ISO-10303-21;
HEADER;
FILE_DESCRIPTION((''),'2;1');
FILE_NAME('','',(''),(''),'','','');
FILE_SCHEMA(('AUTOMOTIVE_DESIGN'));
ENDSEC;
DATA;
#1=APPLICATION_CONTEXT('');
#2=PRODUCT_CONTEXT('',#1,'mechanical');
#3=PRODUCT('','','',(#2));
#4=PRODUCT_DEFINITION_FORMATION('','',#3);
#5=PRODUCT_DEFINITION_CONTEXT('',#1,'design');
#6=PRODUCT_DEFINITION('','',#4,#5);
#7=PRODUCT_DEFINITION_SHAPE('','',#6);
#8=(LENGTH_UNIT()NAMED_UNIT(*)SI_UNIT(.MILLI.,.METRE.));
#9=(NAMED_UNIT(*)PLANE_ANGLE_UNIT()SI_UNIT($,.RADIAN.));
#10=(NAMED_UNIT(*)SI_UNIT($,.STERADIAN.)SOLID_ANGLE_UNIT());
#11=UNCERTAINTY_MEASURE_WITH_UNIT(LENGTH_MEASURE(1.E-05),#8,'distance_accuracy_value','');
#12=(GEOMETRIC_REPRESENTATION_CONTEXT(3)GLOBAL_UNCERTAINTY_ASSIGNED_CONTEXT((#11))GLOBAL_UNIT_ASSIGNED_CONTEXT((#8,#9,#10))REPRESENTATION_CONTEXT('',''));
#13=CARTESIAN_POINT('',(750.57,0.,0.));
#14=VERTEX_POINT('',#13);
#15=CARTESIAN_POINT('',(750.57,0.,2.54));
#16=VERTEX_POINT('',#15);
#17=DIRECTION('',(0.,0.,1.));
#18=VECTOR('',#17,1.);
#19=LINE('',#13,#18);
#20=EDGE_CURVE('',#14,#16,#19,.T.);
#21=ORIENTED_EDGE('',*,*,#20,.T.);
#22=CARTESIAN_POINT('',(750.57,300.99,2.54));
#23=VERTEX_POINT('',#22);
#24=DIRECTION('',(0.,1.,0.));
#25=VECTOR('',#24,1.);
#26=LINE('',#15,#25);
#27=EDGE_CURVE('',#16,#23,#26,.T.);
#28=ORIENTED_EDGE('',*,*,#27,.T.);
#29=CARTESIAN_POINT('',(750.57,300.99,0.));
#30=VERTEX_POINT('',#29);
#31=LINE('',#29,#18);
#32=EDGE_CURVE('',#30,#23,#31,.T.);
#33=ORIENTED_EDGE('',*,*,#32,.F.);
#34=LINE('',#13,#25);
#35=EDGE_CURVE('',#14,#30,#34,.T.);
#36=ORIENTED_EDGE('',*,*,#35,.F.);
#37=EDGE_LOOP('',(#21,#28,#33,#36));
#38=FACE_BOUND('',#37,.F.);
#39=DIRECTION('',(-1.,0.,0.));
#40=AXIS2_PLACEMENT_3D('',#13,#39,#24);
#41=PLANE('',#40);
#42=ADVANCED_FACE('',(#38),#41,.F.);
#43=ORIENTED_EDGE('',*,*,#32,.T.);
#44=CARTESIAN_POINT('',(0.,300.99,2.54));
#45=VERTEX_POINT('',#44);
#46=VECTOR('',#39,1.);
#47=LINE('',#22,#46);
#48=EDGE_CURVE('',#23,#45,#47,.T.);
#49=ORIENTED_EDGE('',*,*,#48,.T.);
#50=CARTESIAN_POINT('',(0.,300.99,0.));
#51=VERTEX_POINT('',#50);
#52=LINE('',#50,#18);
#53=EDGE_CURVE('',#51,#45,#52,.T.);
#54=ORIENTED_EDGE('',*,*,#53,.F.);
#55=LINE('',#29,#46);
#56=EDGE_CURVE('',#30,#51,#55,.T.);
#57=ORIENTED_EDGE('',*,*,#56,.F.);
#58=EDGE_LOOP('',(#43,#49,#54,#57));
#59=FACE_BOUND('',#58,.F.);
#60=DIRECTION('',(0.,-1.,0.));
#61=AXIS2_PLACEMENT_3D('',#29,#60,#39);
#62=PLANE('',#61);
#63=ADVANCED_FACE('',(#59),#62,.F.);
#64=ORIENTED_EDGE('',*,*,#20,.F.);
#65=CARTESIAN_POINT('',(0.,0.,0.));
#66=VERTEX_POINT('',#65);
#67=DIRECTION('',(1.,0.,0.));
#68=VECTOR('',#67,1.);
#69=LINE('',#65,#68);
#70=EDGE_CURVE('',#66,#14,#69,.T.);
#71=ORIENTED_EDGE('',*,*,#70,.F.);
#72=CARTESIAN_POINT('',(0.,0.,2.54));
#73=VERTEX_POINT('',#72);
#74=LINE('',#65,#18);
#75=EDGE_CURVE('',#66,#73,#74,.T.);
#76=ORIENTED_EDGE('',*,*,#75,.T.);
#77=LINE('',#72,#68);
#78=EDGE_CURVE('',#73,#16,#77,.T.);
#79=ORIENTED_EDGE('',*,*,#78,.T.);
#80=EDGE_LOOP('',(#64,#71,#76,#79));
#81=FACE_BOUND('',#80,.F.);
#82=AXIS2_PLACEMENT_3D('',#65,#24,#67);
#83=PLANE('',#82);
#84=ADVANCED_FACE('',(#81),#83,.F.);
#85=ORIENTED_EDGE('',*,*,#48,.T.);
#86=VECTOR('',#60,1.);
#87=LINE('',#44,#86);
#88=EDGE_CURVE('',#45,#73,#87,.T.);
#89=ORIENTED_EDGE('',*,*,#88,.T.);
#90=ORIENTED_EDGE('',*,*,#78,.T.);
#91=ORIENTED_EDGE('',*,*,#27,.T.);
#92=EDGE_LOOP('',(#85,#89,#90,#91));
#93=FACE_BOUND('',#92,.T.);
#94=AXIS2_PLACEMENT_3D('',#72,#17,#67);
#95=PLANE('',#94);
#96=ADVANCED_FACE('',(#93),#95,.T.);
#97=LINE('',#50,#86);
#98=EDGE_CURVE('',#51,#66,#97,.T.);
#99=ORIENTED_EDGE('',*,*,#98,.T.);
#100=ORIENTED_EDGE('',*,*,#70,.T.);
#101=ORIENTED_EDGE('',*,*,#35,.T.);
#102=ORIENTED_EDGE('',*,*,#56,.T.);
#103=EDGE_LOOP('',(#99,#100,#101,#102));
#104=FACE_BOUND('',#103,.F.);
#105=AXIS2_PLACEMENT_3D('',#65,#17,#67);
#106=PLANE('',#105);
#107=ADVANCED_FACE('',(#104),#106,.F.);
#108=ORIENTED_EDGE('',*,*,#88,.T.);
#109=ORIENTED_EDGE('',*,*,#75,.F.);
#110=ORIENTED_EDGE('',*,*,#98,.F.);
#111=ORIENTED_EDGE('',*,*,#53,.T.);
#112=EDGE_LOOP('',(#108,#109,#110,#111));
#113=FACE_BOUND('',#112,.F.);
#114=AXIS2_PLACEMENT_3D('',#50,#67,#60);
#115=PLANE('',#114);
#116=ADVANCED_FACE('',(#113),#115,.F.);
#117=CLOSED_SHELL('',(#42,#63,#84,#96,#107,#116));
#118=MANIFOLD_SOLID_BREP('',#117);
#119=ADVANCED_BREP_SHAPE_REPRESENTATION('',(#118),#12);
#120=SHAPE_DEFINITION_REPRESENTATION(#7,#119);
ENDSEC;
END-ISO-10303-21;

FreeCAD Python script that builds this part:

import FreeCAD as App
import Part
import Sketcher

V = App.Vector
Q = App.Units.Quantity

doc = App.newDocument("Part")
body = doc.addObject("PartDesign::Body", "Body")

# Sketch on XY plane
sketch1 = body.newObject("Sketcher::SketchObject", "Sketch")
sketch1.AttachmentSupport = (doc.getObject("XY_Plane"), [""])
sketch1.MapMode = "FlatFace"
sketch1.addGeometry([
    Part.LineSegment(V(0, 300.99, 0), V(0, 0, 0)),
    Part.LineSegment(V(0, 0, 0), V(750.57, 0, 0)),
    Part.LineSegment(V(750.57, 0, 0), V(750.57, 300.99, 0)),
    Part.LineSegment(V(750.57, 300.99, 0), V(0, 300.99, 0)),
], False)
sketch1.addConstraint([
    Sketcher.Constraint("Coincident", 0, 2, 1, 1),
    Sketcher.Constraint("Coincident", 1, 2, 2, 1),
    Sketcher.Constraint("Coincident", 2, 2, 3, 1),
    Sketcher.Constraint("Coincident", 3, 2, 0, 1),
    Sketcher.Constraint("Vertical", 0),
    Sketcher.Constraint("Horizontal", 1),
    Sketcher.Constraint("Vertical", 2),
    Sketcher.Constraint("Horizontal", 3),
    Sketcher.Constraint("Coincident", 0, 2, -1, 1),
    Sketcher.Constraint("DistanceX", 1, 1, 1, 2, Q("29.55 in")),
    Sketcher.Constraint("DistanceY", 0, 2, 0, 1, Q("11.85 in")),
])
pad1 = body.newObject("PartDesign::Pad", "Pad")
pad1.Profile = sketch1
pad1.Length = Q("0.1 in")

doc.recompute()
